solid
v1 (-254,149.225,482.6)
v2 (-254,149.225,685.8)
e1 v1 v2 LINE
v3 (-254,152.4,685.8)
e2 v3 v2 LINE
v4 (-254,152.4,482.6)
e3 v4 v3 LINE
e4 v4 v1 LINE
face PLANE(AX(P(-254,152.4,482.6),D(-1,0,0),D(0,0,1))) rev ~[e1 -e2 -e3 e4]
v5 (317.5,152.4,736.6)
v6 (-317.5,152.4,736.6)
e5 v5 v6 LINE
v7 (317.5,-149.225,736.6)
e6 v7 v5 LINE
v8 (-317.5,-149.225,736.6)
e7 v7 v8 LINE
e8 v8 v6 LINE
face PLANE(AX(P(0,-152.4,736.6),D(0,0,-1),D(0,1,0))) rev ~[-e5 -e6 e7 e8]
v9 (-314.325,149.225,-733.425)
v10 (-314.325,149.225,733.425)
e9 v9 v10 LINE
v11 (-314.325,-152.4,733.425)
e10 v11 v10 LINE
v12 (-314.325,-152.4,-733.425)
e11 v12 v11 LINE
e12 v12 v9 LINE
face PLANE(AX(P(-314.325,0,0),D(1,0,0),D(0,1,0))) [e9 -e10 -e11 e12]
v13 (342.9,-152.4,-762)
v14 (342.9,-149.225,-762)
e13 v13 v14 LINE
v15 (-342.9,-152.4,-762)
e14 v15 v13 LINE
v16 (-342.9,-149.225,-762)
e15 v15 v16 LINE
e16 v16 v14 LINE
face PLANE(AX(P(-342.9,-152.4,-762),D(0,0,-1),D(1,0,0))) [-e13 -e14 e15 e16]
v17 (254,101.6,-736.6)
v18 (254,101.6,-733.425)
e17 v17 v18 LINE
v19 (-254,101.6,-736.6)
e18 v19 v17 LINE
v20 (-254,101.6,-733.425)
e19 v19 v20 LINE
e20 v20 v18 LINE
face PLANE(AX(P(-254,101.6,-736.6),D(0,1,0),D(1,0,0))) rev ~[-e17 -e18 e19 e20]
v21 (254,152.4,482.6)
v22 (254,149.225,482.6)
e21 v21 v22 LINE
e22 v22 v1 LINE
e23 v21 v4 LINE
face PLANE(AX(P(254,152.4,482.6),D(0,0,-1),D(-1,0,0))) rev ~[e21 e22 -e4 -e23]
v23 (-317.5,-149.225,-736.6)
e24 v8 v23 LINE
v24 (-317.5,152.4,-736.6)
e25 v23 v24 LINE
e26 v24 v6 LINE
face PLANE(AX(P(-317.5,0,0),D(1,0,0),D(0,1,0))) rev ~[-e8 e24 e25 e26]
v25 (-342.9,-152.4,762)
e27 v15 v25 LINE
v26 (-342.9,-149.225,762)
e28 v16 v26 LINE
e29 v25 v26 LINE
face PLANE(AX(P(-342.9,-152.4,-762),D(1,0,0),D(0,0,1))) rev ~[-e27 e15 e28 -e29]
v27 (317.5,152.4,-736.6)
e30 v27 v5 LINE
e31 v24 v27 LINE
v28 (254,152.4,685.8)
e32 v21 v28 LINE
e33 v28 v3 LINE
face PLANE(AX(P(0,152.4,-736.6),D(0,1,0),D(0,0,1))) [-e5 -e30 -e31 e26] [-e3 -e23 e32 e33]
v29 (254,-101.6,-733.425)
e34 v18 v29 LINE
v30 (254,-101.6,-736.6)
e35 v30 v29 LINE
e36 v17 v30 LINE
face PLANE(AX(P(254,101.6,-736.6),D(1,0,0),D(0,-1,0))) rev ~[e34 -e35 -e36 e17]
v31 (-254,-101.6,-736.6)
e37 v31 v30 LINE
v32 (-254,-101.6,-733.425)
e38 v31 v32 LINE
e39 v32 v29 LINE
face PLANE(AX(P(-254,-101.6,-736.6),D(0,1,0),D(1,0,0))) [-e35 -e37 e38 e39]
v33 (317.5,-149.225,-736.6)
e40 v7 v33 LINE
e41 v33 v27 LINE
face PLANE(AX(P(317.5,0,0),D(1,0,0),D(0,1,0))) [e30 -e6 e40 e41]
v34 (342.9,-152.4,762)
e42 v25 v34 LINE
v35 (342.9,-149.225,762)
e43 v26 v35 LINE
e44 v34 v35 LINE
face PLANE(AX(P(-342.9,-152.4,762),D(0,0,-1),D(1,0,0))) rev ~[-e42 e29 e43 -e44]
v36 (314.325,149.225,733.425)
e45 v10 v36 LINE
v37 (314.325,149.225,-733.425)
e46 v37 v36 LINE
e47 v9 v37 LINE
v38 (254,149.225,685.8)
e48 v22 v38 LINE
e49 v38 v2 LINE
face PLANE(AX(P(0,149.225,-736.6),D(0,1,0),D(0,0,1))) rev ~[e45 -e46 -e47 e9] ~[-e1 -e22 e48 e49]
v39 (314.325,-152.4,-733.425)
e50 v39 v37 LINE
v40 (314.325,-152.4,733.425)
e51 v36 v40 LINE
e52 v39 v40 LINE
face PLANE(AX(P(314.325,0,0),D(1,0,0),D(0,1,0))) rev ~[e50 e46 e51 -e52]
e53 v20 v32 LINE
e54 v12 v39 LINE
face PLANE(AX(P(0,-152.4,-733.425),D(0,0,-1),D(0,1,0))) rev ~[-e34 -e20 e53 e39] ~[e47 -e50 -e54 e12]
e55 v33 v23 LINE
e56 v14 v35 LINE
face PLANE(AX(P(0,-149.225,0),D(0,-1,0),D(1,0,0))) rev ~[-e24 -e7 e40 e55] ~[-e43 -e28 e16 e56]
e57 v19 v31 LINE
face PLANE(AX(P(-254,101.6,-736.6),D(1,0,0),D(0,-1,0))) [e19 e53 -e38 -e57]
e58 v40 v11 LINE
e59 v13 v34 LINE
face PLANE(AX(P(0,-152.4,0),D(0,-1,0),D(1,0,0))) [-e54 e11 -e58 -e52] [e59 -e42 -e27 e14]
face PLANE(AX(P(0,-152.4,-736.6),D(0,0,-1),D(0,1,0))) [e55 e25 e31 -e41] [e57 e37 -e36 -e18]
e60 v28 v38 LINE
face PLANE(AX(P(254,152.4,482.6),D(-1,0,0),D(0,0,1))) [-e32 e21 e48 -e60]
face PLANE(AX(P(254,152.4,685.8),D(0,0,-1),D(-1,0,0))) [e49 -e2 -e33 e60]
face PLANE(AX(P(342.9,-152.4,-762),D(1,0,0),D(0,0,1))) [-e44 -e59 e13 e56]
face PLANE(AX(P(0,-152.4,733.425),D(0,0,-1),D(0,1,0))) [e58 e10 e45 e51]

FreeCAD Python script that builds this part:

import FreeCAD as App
import Part
import Sketcher
Q = App.Units.Quantity


def faces_at(feature, points):
    """Names of the faces that lie closest to the given points."""
    faces = feature.Shape.Faces
    near = lambda p: min(range(len(faces)), key=lambda i: faces[i].distToShape(Part.Vertex(*p))[0])
    return sorted({f"Face{near(p) + 1}" for p in points})

doc = App.newDocument("Part")
body = doc.addObject("PartDesign::Body", "Body")

sketch1 = body.newObject("Sketcher::SketchObject", "Sketch")
sketch1.AttachmentSupport = (doc.getObject("YZ_Plane"), [""])
sketch1.MapMode = "FlatFace"
sketch1.addGeometry([
    Part.LineSegment(App.Vector(-152.4, 736.6, 0), App.Vector(-152.4, -736.6, 0)),
    Part.LineSegment(App.Vector(-152.4, -736.6, 0), App.Vector(152.4, -736.6, 0)),
    Part.LineSegment(App.Vector(152.4, -736.6, 0), App.Vector(152.4, 736.6, 0)),
    Part.LineSegment(App.Vector(152.4, 736.6, 0), App.Vector(-152.4, 736.6, 0)),
], False)
sketch1.addConstraint([
    Sketcher.Constraint("Coincident", 0, 2, 1, 1),
    Sketcher.Constraint("Coincident", 1, 2, 2, 1),
    Sketcher.Constraint("Coincident", 2, 2, 3, 1),
    Sketcher.Constraint("Coincident", 3, 2, 0, 1),
    Sketcher.Constraint("Vertical", 0),
    Sketcher.Constraint("Horizontal", 1),
    Sketcher.Constraint("Vertical", 2),
    Sketcher.Constraint("Horizontal", 3),
    Sketcher.Constraint("Symmetric", 0, 2, 2, 2, -1, 1),
    Sketcher.Constraint("DistanceX", 1, 1, 1, 2, Q("12 in")),
    Sketcher.Constraint("DistanceY", 0, 2, 0, 1, Q("58 in")),
])
pad1 = body.newObject("PartDesign::Pad", "Pad")
pad1.Profile = sketch1
pad1.Length = Q("25 in")
pad1.Midplane = True
doc.recompute()

thickness = body.newObject("PartDesign::Thickness", "Thickness")
thickness.Base = (pad1, faces_at(pad1, [(0, -152.4, 0)]))
thickness.Value = Q("0.125 in")
thickness.Reversed = True
thickness.Join = "Arc"

sketch2 = body.newObject("Sketcher::SketchObject", "Sketch001")
sketch2.AttachmentSupport = (doc.getObject("XZ_Plane"), [""])
sketch2.MapMode = "FlatFace"
sketch2.AttachmentOffset = App.Placement(App.Vector(0, 0, 6 * 25.4), App.Rotation())
sketch2.addGeometry([
    Part.LineSegment(App.Vector(-342.9, 762, 0), App.Vector(-342.9, -762, 0)),
    Part.LineSegment(App.Vector(-342.9, -762, 0), App.Vector(342.9, -762, 0)),
    Part.LineSegment(App.Vector(342.9, -762, 0), App.Vector(342.9, 762, 0)),
    Part.LineSegment(App.Vector(342.9, 762, 0), App.Vector(-342.9, 762, 0)),
    Part.LineSegment(App.Vector(314.325, -733.425, 0), App.Vector(-314.325, -733.425, 0)),
    Part.LineSegment(App.Vector(-314.325, -733.425, 0), App.Vector(-314.325, 733.425, 0)),
    Part.LineSegment(App.Vector(-314.325, 733.425, 0), App.Vector(314.325, 733.425, 0)),
    Part.LineSegment(App.Vector(314.325, 733.425, 0), App.Vector(314.325, -733.425, 0)),
], False)
sketch2.addConstraint([
    Sketcher.Constraint("Coincident", 0, 2, 1, 1),
    Sketcher.Constraint("Coincident", 1, 2, 2, 1),
    Sketcher.Constraint("Coincident", 2, 2, 3, 1),
    Sketcher.Constraint("Coincident", 3, 2, 0, 1),
    Sketcher.Constraint("Coincident", 4, 2, 5, 1),
    Sketcher.Constraint("Coincident", 5, 2, 6, 1),
    Sketcher.Constraint("Coincident", 6, 2, 7, 1),
    Sketcher.Constraint("Coincident", 7, 2, 4, 1),
    Sketcher.Constraint("Vertical", 0),
    Sketcher.Constraint("Horizontal", 1),
    Sketcher.Constraint("Vertical", 2),
    Sketcher.Constraint("Horizontal", 3),
    Sketcher.Constraint("Horizontal", 4),
    Sketcher.Constraint("Vertical", 5),
    Sketcher.Constraint("Horizontal", 6),
    Sketcher.Constraint("Vertical", 7),
    Sketcher.Constraint("Symmetric", 0, 2, 2, 2, -1, 1),
    Sketcher.Constraint("Symmetric", 4, 2, 6, 2, -1, 1),
    Sketcher.Constraint("DistanceX", 1, 1, 1, 2, Q("27 in")),
    Sketcher.Constraint("DistanceY", 0, 2, 0, 1, Q("60 in")),
    Sketcher.Constraint("DistanceX", 4, 2, 4, 1, Q("24.75 in")),
    Sketcher.Constraint("DistanceY", 5, 1, 5, 2, Q("57.75 in")),
])
pad2 = body.newObject("PartDesign::Pad", "Pad001")
pad2.Profile = sketch2
pad2.Length = Q("0.125 in")
pad2.Reversed = True

sketch3 = body.newObject("Sketcher::SketchObject", "Sketch002")
sketch3.AttachmentSupport = (doc.getObject("XZ_Plane"), [""])
sketch3.MapMode = "FlatFace"
sketch3.AttachmentOffset = App.Placement(App.Vector(0, 0, -6 * 25.4), App.Rotation())
sketch3.addGeometry([
    Part.LineSegment(App.Vector(254, 685.8, 0), App.Vector(254, 482.6, 0)),
    Part.LineSegment(App.Vector(254, 482.6, 0), App.Vector(-254, 482.6, 0)),
    Part.LineSegment(App.Vector(-254, 482.6, 0), App.Vector(-254, 685.8, 0)),
    Part.LineSegment(App.Vector(-254, 685.8, 0), App.Vector(254, 685.8, 0)),
], False)
sketch3.addConstraint([
    Sketcher.Constraint("Coincident", 0, 2, 1, 1),
    Sketcher.Constraint("Coincident", 1, 2, 2, 1),
    Sketcher.Constraint("Coincident", 2, 2, 3, 1),
    Sketcher.Constraint("Coincident", 3, 2, 0, 1),
    Sketcher.Constraint("Vertical", 0),
    Sketcher.Constraint("Horizontal", 1),
    Sketcher.Constraint("Vertical", 2),
    Sketcher.Constraint("Horizontal", 3),
    Sketcher.Constraint("DistanceX", 1, 2, 1, 1, Q("20 in")),
    Sketcher.Constraint("DistanceY", 0, 2, 0, 1, Q("8 in")),
    Sketcher.Constraint("DistanceX", -1, 1, 0, 2, Q("10 in")),
    Sketcher.Constraint("DistanceY", -1, 1, 0, 2, Q("19 in")),
])
pocket1 = body.newObject("PartDesign::Pocket", "Pocket")
pocket1.Profile = sketch3
pocket1.Type = "ThroughAll"
pocket1.Reversed = True

sketch4 = body.newObject("Sketcher::SketchObject", "Sketch003")
sketch4.AttachmentSupport = (doc.getObject("XY_Plane"), [""])
sketch4.MapMode = "FlatFace"
sketch4.AttachmentOffset = App.Placement(App.Vector(0, 0, -29 * 25.4), App.Rotation())
sketch4.addGeometry([
    Part.LineSegment(App.Vector(-254, -101.6, 0), App.Vector(-254, 101.6, 0)),
    Part.LineSegment(App.Vector(-254, 101.6, 0), App.Vector(254, 101.6, 0)),
    Part.LineSegment(App.Vector(254, 101.6, 0), App.Vector(254, -101.6, 0)),
    Part.LineSegment(App.Vector(254, -101.6, 0), App.Vector(-254, -101.6, 0)),
], False)
sketch4.addConstraint([
    Sketcher.Constraint("Coincident", 0, 2, 1, 1),
    Sketcher.Constraint("Coincident", 1, 2, 2, 1),
    Sketcher.Constraint("Coincident", 2, 2, 3, 1),
    Sketcher.Constraint("Coincident", 3, 2, 0, 1),
    Sketcher.Constraint("Vertical", 0),
    Sketcher.Constraint("Horizontal", 1),
    Sketcher.Constraint("Vertical", 2),
    Sketcher.Constraint("Horizontal", 3),
    Sketcher.Constraint("Symmetric", 0, 2, 2, 2, -1, 1),
    Sketcher.Constraint("DistanceX", 1, 1, 1, 2, Q("20 in")),
    Sketcher.Constraint("DistanceY", 0, 1, 0, 2, Q("8 in")),
])
pocket2 = body.newObject("PartDesign::Pocket", "Pocket001")
pocket2.Profile = sketch4
pocket2.Length = Q("0.125 in")
pocket2.Reversed = True

doc.recompute()
